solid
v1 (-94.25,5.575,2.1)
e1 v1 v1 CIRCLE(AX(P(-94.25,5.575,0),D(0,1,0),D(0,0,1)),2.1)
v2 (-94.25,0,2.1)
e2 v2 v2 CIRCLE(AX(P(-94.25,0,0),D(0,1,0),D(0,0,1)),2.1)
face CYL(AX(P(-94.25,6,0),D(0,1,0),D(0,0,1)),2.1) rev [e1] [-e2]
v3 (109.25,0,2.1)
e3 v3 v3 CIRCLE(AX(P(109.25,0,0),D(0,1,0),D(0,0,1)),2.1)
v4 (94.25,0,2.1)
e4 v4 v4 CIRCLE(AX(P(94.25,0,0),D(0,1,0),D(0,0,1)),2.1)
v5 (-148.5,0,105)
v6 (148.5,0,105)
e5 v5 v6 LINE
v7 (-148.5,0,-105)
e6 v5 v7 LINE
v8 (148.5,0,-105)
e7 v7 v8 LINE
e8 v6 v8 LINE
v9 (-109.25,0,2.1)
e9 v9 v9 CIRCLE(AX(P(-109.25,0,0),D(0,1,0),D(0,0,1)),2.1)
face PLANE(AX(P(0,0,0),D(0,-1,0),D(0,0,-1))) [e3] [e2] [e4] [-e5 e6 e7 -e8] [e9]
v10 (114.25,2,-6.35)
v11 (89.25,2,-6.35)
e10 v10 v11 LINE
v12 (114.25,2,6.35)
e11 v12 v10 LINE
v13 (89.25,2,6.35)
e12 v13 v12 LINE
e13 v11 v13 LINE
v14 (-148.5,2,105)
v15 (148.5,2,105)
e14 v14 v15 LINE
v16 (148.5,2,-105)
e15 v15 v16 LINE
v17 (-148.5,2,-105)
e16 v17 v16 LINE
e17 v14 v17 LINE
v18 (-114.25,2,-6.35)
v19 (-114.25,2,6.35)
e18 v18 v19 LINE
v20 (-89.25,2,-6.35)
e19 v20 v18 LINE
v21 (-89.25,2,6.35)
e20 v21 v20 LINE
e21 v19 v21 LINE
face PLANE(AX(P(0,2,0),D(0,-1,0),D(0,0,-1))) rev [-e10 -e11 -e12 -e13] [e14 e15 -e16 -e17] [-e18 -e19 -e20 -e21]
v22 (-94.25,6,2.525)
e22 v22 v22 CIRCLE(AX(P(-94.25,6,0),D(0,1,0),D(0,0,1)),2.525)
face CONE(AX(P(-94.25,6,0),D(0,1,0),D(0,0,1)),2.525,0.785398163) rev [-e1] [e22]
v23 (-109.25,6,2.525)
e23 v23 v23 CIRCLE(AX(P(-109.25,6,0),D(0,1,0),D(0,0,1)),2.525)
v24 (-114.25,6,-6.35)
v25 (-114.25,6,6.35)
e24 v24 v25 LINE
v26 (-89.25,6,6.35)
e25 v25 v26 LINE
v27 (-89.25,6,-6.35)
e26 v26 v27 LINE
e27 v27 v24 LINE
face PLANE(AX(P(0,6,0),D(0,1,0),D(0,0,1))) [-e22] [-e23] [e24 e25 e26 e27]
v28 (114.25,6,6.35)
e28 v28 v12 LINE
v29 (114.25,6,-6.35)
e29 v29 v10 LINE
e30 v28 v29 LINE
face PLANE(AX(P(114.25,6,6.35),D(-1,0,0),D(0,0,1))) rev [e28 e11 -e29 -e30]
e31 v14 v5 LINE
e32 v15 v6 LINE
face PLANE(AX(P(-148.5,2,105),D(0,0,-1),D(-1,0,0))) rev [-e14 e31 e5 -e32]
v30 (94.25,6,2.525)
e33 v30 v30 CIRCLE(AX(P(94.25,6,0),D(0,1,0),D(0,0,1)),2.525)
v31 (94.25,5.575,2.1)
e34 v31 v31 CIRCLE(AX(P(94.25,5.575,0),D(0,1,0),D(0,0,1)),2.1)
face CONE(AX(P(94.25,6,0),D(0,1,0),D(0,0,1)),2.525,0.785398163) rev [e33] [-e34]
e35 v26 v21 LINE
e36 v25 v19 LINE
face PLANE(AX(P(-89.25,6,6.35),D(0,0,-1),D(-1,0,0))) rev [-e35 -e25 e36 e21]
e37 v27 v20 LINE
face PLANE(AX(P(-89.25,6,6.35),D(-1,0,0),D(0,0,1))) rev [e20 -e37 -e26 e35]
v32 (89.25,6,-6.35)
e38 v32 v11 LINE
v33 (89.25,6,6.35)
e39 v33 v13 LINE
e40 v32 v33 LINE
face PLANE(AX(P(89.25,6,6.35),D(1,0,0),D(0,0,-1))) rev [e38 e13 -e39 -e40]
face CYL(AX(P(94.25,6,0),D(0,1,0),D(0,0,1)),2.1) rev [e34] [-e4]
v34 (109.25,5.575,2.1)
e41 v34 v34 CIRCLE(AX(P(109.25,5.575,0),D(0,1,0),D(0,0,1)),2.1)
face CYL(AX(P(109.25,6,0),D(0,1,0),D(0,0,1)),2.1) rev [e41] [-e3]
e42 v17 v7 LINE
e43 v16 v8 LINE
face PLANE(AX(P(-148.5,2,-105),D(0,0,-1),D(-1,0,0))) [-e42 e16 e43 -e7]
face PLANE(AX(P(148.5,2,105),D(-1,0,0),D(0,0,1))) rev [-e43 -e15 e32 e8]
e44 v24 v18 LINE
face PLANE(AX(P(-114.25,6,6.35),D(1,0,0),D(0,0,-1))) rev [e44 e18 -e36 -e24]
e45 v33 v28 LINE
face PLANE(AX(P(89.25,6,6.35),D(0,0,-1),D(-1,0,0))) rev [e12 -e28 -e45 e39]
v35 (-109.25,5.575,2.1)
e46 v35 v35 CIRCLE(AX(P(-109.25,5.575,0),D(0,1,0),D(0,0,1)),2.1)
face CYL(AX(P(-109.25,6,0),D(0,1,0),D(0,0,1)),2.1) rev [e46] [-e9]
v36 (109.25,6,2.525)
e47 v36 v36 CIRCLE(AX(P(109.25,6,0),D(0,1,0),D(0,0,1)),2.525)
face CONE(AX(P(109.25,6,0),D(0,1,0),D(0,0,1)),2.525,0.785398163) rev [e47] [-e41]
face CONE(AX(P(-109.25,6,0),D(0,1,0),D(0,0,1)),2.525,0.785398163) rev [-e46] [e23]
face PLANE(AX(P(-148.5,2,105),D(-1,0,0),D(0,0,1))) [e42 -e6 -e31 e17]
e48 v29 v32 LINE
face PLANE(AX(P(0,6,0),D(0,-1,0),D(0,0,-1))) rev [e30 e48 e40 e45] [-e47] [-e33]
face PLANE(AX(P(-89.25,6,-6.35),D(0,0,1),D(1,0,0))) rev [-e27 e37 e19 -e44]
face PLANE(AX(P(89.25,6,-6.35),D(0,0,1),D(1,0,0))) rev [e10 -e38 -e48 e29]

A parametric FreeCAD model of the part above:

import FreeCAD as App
import Part
import Sketcher
Q = App.Units.Quantity

doc = App.newDocument("Part")
params = doc.addObject("Spreadsheet::Sheet", "Params")
for row, (alias, value) in enumerate([
    ("sketch1_width", "297 mm"),
    ("sketch1_height", "210 mm"),
    ("pad1_length", "2 mm"),
    ("sketch2_width", "25 mm"),
    ("sketch2_height", "12.7 mm"),
    ("pad2_length", "4 mm"),
    ("sketch3_diameter", "4.2 mm"),
    ("hole_diameter", "4.2 mm"),
    ("hole_csink_diameter", "5.05 mm"),
], start=1):
    params.set(f"A{row}", alias)
    params.set(f"B{row}", "=" + value)
    params.setAlias(f"B{row}", alias)

body = doc.addObject("PartDesign::Body", "Body")

# Sketch on XZ plane
sketch1 = body.newObject("Sketcher::SketchObject", "Sketch")
sketch1.AttachmentSupport = (doc.getObject("XZ_Plane"), [""])
sketch1.MapMode = "FlatFace"
sketch1.addGeometry([
    Part.LineSegment(App.Vector(-148.5, -105, 0), App.Vector(-148.5, 105, 0)),
    Part.LineSegment(App.Vector(-148.5, 105, 0), App.Vector(148.5, 105, 0)),
    Part.LineSegment(App.Vector(148.5, 105, 0), App.Vector(148.5, -105, 0)),
    Part.LineSegment(App.Vector(148.5, -105, 0), App.Vector(-148.5, -105, 0)),
], False)
sketch1.addConstraint([
    Sketcher.Constraint("Coincident", 0, 2, 1, 1),
    Sketcher.Constraint("Coincident", 1, 2, 2, 1),
    Sketcher.Constraint("Coincident", 2, 2, 3, 1),
    Sketcher.Constraint("Coincident", 3, 2, 0, 1),
    Sketcher.Constraint("Vertical", 0),
    Sketcher.Constraint("Horizontal", 1),
    Sketcher.Constraint("Vertical", 2),
    Sketcher.Constraint("Horizontal", 3),
    Sketcher.Constraint("Symmetric", 0, 2, 2, 2, -1, 1),
    Sketcher.Constraint("DistanceX", 1, 1, 1, 2, Q("297 mm")),
    Sketcher.Constraint("DistanceY", 0, 1, 0, 2, Q("210 mm")),
])
sketch1.setExpression("Constraints[9]", "Params.sketch1_width")
sketch1.setExpression("Constraints[10]", "Params.sketch1_height")
pad1 = body.newObject("PartDesign::Pad", "Pad")
pad1.Profile = sketch1
pad1.setExpression("Length", "Params.pad1_length")
pad1.Reversed = True

# Sketch on XZ plane
sketch2 = body.newObject("Sketcher::SketchObject", "Sketch001")
sketch2.AttachmentSupport = (doc.getObject("XZ_Plane"), [""])
sketch2.MapMode = "FlatFace"
sketch2.AttachmentOffset = App.Placement(App.Vector(0, 0, -2), App.Rotation())
sketch2.addGeometry([
    Part.LineSegment(App.Vector(89.25, -6.35, 0), App.Vector(89.25, 6.35, 0)),  # 0
    Part.LineSegment(App.Vector(89.25, 6.35, 0), App.Vector(114.25, 6.35, 0)),  # 1
    Part.LineSegment(App.Vector(114.25, 6.35, 0), App.Vector(114.25, -6.35, 0)),  # 2
    Part.LineSegment(App.Vector(114.25, -6.35, 0), App.Vector(89.25, -6.35, 0)),  # 3
    Part.LineSegment(App.Vector(-114.25, -6.35, 0), App.Vector(-114.25, 6.35, 0)),  # 4
    Part.LineSegment(App.Vector(-114.25, 6.35, 0), App.Vector(-89.25, 6.35, 0)),  # 5
    Part.LineSegment(App.Vector(-89.25, 6.35, 0), App.Vector(-89.25, -6.35, 0)),  # 6
    Part.LineSegment(App.Vector(-89.25, -6.35, 0), App.Vector(-114.25, -6.35, 0)),  # 7
], False)
sketch2.addConstraint([
    Sketcher.Constraint("Coincident", 0, 2, 1, 1),
    Sketcher.Constraint("Coincident", 1, 2, 2, 1),
    Sketcher.Constraint("Coincident", 2, 2, 3, 1),
    Sketcher.Constraint("Coincident", 3, 2, 0, 1),
    Sketcher.Constraint("Coincident", 4, 2, 5, 1),
    Sketcher.Constraint("Coincident", 5, 2, 6, 1),
    Sketcher.Constraint("Coincident", 6, 2, 7, 1),
    Sketcher.Constraint("Coincident", 7, 2, 4, 1),
    Sketcher.Constraint("Vertical", 0),
    Sketcher.Constraint("Horizontal", 1),
    Sketcher.Constraint("Vertical", 2),
    Sketcher.Constraint("Horizontal", 3),
    Sketcher.Constraint("Vertical", 4),
    Sketcher.Constraint("Horizontal", 5),
    Sketcher.Constraint("Vertical", 6),
    Sketcher.Constraint("Horizontal", 7),
    Sketcher.Constraint("Symmetric", 2, 2, 4, 2, -1, 1),
    Sketcher.Constraint("Symmetric", 0, 2, 6, 2, -1, 1),
    Sketcher.Constraint("Horizontal", 1, 2, 4, 2),
    Sketcher.Constraint("DistanceX", 1, 1, 1, 2, Q("25 mm")),
    Sketcher.Constraint("DistanceY", 0, 1, 0, 2, Q("12.7 mm")),
    Sketcher.Constraint("DistanceX", 4, 2, 0, 2, Q("203.5 mm")),
])
sketch2.setExpression("Constraints[19]", "Params.sketch2_width")
sketch2.setExpression("Constraints[20]", "Params.sketch2_height")
pad2 = body.newObject("PartDesign::Pad", "Pad001")
pad2.Profile = sketch2
pad2.setExpression("Length", "Params.pad2_length")
pad2.Reversed = True

# Sketch on XZ plane
sketch3 = body.newObject("Sketcher::SketchObject", "Sketch002")
sketch3.AttachmentSupport = (doc.getObject("XZ_Plane"), [""])
sketch3.MapMode = "FlatFace"
sketch3.AttachmentOffset = App.Placement(App.Vector(0, 0, -6), App.Rotation())
sketch3.addGeometry([
    Part.Circle(App.Vector(-109.25, 0, 0), App.Vector(0, 0, 1), 2.1),
    Part.Circle(App.Vector(109.25, 0, 0), App.Vector(0, 0, 1), 2.1),
    Part.Circle(App.Vector(94.25, 0, 0), App.Vector(0, 0, 1), 2.1),
    Part.Circle(App.Vector(-94.25, 0, 0), App.Vector(0, 0, 1), 2.1),
], False)
sketch3.addConstraint([
    Sketcher.Constraint("Equal", 0, 1),
    Sketcher.Constraint("Equal", 1, 2),
    Sketcher.Constraint("Equal", 2, 3),
    Sketcher.Constraint("Symmetric", 0, 3, 1, 3, -1, 1),
    Sketcher.Constraint("Symmetric", 2, 3, 3, 3, -1, 1),
    Sketcher.Constraint("PointOnObject", 0, 3, -1),
    Sketcher.Constraint("PointOnObject", 2, 3, -1),
    Sketcher.Constraint("Diameter", 0, Q("4.2 mm")),
    Sketcher.Constraint("DistanceX", 2, 3, 1, 3, Q("15 mm")),
    Sketcher.Constraint("DistanceX", 0, 3, 1, 3, Q("218.5 mm")),
])
sketch3.setExpression("Constraints[7]", "Params.sketch3_diameter")
doc.recompute()
hole = body.newObject("PartDesign::Hole", "Hole")
hole.Profile = sketch3
hole.ThreadType = "None"
hole.setExpression("Diameter", "Params.hole_diameter")
hole.DepthType = "ThroughAll"
hole.HoleCutType = "Countersink"
hole.setExpression("HoleCutDiameter", "Params.hole_csink_diameter")
hole.HoleCutCountersinkAngle = 90
hole.Reversed = True

doc.recompute()
